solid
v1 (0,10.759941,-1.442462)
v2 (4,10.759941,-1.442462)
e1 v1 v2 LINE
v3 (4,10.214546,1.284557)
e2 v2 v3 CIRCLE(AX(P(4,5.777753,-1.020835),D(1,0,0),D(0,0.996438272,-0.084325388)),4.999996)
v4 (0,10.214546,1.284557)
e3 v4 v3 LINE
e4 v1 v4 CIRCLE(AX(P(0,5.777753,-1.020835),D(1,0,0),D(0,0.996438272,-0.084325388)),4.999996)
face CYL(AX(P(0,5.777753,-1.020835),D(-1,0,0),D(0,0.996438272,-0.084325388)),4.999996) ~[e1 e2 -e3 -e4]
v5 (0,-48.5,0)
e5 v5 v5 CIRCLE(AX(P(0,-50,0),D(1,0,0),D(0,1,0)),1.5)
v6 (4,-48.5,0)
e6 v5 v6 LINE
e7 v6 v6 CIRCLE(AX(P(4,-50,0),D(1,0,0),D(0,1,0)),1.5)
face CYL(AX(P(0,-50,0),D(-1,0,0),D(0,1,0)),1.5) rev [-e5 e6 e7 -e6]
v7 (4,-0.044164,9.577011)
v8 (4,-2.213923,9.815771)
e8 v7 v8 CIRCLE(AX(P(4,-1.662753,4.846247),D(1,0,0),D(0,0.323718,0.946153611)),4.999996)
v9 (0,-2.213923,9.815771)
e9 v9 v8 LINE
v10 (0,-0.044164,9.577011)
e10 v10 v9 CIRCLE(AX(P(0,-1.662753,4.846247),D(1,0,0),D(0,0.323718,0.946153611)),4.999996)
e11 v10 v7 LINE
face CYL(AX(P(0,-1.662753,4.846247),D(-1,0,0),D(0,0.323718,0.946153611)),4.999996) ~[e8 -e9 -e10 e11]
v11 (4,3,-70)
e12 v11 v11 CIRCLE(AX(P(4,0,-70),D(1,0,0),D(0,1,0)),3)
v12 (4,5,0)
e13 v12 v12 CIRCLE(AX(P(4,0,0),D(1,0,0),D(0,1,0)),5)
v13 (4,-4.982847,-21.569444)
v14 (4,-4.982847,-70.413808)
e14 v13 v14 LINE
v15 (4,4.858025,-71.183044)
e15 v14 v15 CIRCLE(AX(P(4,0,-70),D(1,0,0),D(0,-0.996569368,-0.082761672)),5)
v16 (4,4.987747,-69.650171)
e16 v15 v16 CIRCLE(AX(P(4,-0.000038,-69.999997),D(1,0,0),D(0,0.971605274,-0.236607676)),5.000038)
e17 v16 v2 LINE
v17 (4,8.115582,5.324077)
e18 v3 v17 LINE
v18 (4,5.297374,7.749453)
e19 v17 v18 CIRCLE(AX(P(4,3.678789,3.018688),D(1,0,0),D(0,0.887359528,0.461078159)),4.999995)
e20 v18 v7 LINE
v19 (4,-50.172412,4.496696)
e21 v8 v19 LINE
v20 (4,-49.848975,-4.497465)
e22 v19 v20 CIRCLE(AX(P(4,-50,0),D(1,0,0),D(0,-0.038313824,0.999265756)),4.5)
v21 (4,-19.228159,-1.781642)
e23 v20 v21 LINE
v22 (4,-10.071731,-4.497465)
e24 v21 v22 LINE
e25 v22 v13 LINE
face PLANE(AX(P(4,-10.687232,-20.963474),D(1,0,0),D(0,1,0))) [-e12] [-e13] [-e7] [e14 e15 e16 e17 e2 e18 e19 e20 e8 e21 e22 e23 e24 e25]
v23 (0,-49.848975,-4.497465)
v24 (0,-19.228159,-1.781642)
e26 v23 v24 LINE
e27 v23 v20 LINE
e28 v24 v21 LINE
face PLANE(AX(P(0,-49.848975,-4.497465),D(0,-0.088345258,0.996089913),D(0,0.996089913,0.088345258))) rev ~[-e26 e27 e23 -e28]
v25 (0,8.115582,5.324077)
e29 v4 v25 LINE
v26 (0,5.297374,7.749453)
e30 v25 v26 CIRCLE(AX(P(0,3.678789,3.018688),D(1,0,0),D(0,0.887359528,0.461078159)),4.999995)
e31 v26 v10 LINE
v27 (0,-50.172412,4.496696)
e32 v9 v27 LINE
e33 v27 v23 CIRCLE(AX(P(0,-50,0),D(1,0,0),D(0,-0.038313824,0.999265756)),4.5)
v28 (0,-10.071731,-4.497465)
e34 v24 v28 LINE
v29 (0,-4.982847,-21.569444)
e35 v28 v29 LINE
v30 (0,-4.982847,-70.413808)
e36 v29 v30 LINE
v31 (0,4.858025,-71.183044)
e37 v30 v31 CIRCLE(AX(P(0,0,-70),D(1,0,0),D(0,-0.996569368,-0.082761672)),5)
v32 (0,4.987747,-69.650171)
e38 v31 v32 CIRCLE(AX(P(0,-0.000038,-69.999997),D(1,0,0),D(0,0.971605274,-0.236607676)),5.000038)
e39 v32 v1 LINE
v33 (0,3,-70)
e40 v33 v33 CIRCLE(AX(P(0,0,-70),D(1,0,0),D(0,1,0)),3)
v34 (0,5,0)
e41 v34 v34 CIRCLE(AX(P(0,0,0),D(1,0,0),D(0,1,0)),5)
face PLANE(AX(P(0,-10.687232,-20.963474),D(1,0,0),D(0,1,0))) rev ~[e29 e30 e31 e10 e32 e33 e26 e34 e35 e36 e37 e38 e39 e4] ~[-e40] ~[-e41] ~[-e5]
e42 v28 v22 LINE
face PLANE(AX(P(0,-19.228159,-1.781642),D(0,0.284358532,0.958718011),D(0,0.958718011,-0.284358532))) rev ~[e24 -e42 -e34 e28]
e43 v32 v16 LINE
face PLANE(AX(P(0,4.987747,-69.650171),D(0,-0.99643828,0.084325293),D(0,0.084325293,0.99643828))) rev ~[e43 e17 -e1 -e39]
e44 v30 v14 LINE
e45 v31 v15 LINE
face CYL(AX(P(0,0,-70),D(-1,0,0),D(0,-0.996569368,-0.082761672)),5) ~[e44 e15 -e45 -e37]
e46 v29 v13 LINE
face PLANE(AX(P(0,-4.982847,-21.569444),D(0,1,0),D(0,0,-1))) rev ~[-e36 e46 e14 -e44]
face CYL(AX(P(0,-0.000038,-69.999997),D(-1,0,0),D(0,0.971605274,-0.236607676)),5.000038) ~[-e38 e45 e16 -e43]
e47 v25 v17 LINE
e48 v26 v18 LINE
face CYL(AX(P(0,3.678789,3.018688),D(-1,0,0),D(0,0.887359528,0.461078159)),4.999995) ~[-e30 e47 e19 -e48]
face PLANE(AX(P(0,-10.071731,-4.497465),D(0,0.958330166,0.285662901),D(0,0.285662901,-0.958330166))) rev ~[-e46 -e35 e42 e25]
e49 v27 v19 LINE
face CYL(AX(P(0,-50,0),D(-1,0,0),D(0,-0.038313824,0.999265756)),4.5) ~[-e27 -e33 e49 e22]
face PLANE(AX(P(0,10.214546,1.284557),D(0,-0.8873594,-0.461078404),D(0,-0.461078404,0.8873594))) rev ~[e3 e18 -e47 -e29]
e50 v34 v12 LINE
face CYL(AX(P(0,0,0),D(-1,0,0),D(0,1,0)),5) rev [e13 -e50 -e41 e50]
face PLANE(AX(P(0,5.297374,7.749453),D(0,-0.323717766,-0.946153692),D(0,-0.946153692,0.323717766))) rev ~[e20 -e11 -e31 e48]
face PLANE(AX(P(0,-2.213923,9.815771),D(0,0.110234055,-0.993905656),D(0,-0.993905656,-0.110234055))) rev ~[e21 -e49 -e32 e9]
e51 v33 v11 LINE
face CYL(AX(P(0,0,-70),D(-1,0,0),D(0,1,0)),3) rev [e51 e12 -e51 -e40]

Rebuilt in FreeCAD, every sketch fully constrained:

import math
import FreeCAD as App
import Part
import Sketcher

V = App.Vector

doc = App.newDocument("Part")
body = doc.addObject("PartDesign::Body", "Body")

sketch1 = body.newObject("Sketcher::SketchObject", "Sketch")
sketch1.AttachmentSupport = (doc.getObject("YZ_Plane"), [""])
sketch1.MapMode = "FlatFace"
sketch1.addGeometry(Part.LineSegment(V(-2.2, 9.8, 0), V(-50.2, 4.5, 0)), False)
sketch1.addGeometry(Part.ArcOfCircle(Part.Circle(V(-50, 0, 0), V(0, 0, 1), 4.5), math.radians(92), math.radians(272)), False)
sketch1.addGeometry(Part.LineSegment(V(-49.8, -4.5, 0), V(-19.2, -1.8, 0)), False)
sketch1.addGeometry(Part.LineSegment(V(-19.2, -1.8, 0), V(-10.1, -4.5, 0)), False)
sketch1.addGeometry(Part.LineSegment(V(-10.1, -4.5, 0), V(-5, -21.6, 0)), False)
sketch1.addGeometry(Part.LineSegment(V(-5, -21.6, 0), V(-5, -70.4, 0)), False)
sketch1.addGeometry(Part.ArcOfCircle(Part.Circle(V(0, -70, 0), V(0, 0, 1), 5), math.radians(-175), math.radians(-14)), False)
sketch1.addGeometry(Part.ArcOfCircle(Part.Circle(V(0, -70, 0), V(0, 0, 1), 5), math.radians(-13.69), math.radians(4.01)), False)
sketch1.addGeometry(Part.LineSegment(V(5, -69.7, 0), V(10.8, -1.4, 0)), False)
sketch1.addGeometry(Part.ArcOfCircle(Part.Circle(V(5.8, -1, 0), V(0, 0, 1), 5), math.radians(-5), math.radians(27)), False)
sketch1.addGeometry(Part.LineSegment(V(10.2, 1.3, 0), V(8.1, 5.3, 0)), False)
sketch1.addGeometry(Part.ArcOfCircle(Part.Circle(V(3.7, 3, 0), V(0, 0, 1), 5), math.radians(27), math.radians(71)), False)
sketch1.addGeometry(Part.LineSegment(V(5.3, 7.7, 0), V(0, 9.6, 0)), False)
sketch1.addGeometry(Part.ArcOfCircle(Part.Circle(V(-1.7, 4.8, 0), V(0, 0, 1), 5), math.radians(71), math.radians(96)), False)
sketch1.addGeometry(Part.Circle(V(0, -70, 0), V(0, 0, 1), 3), False)
sketch1.addGeometry(Part.Circle(V(-50, 0, 0), V(0, 0, 1), 1.5), False)
sketch1.addGeometry(Part.Circle(V(0, 0, 0), V(0, 0, 1), 5), False)
sketch1.addConstraint(Sketcher.Constraint("Coincident", 0, 2, 1, 1))
sketch1.addConstraint(Sketcher.Constraint("Coincident", 1, 2, 2, 1))
sketch1.addConstraint(Sketcher.Constraint("Coincident", 2, 2, 3, 1))
sketch1.addConstraint(Sketcher.Constraint("Coincident", 3, 2, 4, 1))
sketch1.addConstraint(Sketcher.Constraint("Coincident", 4, 2, 5, 1))
sketch1.addConstraint(Sketcher.Constraint("Coincident", 5, 2, 6, 1))
sketch1.addConstraint(Sketcher.Constraint("Tangent", 6, 2, 7, 1))
sketch1.addConstraint(Sketcher.Constraint("Coincident", 7, 2, 8, 1))
sketch1.addConstraint(Sketcher.Constraint("Tangent", 8, 2, 9, 1))
sketch1.addConstraint(Sketcher.Constraint("Tangent", 9, 2, 10, 1))
sketch1.addConstraint(Sketcher.Constraint("Tangent", 10, 2, 11, 1))
sketch1.addConstraint(Sketcher.Constraint("Tangent", 11, 2, 12, 1))
sketch1.addConstraint(Sketcher.Constraint("Tangent", 12, 2, 13, 1))
sketch1.addConstraint(Sketcher.Constraint("Tangent", 13, 2, 0, 1))
sketch1.addConstraint(Sketcher.Constraint("Vertical", 5))
sketch1.addConstraint(Sketcher.Constraint("Coincident", 16, 3, -1, 1))
sketch1.addConstraint(Sketcher.Constraint("Coincident", 14, 3, 6, 3))
sketch1.addConstraint(Sketcher.Constraint("Coincident", 15, 3, 1, 3))
sketch1.addConstraint(Sketcher.Constraint("Equal", 9, 11))
sketch1.addConstraint(Sketcher.Constraint("Equal", 11, 13))
sketch1.addConstraint(Sketcher.Constraint("Equal", 6, 16))
sketch1.addConstraint(Sketcher.Constraint("PointOnObject", 1, 3, -1))
sketch1.addConstraint(Sketcher.Constraint("PointOnObject", 6, 3, -2))
sketch1.addConstraint(Sketcher.Constraint("Horizontal", 1, 2, 3, 2))
sketch1.addConstraint(Sketcher.Constraint("Diameter", 14, 6.0))
sketch1.addConstraint(Sketcher.Constraint("Diameter", 15, 3.0))
sketch1.addConstraint(Sketcher.Constraint("Diameter", 16, 10.0))
sketch1.addConstraint(Sketcher.Constraint("Radius", 1, 4.5))
sketch1.addConstraint(Sketcher.Constraint("DistanceX", 1, 3, -1, 1, 50.0))
sketch1.addConstraint(Sketcher.Constraint("DistanceY", 6, 3, -1, 1, 70.0))
sketch1.addConstraint(Sketcher.Constraint("Radius", 7, 5.000038))
sketch1.addConstraint(Sketcher.Constraint("Radius", 9, 4.999996))
sketch1.addConstraint(Sketcher.Constraint("Distance", 3, 9.5507))
sketch1.addConstraint(Sketcher.Constraint("DistanceX", 0, 2, 11, 3, 53.851201))
sketch1.addConstraint(Sketcher.Constraint("DistanceX", 4, 2, 9, 3, 10.7606))
sketch1.addConstraint(Sketcher.Constraint("DistanceY", 4, 2, 2, 2, 19.787802))
sketch1.addConstraint(Sketcher.Constraint("DistanceY", 6, 2, 4, 2, 49.6136))
sketch1.addConstraint(Sketcher.Constraint("DistanceX", 13, 3, 9, 2, 11.877299))
sketch1.addConstraint(Sketcher.Constraint("Distance", 12, 5.645529))
sketch1.addConstraint(Sketcher.Constraint("DistanceY", 5, 2, 5, 1, 48.844364))
sketch1.addConstraint(Sketcher.Constraint("DistanceX", -1, 1, 11, 3, 3.678789))
sketch1.addConstraint(Sketcher.Constraint("DistanceY", -1, 1, 11, 3, 3.018688))
sketch1.addConstraint(Sketcher.Constraint("DistanceX", 2, 2, -1, 1, 19.228159))
sketch1.addConstraint(Sketcher.Constraint("DistanceX", 3, 2, -1, 1, 10.071731))
sketch1.addConstraint(Sketcher.Constraint("DistanceY", 5, 2, -1, 1, 70.413808))
sketch1.addConstraint(Sketcher.Constraint("DistanceY", 7, 2, -1, 1, 69.650171))
sketch1.addConstraint(Sketcher.Constraint("DistanceY", 8, 2, -1, 1, 1.442462))
pad1 = body.newObject("PartDesign::Pad", "Pad")
pad1.Profile = sketch1
pad1.Length = 4

doc.recompute()
